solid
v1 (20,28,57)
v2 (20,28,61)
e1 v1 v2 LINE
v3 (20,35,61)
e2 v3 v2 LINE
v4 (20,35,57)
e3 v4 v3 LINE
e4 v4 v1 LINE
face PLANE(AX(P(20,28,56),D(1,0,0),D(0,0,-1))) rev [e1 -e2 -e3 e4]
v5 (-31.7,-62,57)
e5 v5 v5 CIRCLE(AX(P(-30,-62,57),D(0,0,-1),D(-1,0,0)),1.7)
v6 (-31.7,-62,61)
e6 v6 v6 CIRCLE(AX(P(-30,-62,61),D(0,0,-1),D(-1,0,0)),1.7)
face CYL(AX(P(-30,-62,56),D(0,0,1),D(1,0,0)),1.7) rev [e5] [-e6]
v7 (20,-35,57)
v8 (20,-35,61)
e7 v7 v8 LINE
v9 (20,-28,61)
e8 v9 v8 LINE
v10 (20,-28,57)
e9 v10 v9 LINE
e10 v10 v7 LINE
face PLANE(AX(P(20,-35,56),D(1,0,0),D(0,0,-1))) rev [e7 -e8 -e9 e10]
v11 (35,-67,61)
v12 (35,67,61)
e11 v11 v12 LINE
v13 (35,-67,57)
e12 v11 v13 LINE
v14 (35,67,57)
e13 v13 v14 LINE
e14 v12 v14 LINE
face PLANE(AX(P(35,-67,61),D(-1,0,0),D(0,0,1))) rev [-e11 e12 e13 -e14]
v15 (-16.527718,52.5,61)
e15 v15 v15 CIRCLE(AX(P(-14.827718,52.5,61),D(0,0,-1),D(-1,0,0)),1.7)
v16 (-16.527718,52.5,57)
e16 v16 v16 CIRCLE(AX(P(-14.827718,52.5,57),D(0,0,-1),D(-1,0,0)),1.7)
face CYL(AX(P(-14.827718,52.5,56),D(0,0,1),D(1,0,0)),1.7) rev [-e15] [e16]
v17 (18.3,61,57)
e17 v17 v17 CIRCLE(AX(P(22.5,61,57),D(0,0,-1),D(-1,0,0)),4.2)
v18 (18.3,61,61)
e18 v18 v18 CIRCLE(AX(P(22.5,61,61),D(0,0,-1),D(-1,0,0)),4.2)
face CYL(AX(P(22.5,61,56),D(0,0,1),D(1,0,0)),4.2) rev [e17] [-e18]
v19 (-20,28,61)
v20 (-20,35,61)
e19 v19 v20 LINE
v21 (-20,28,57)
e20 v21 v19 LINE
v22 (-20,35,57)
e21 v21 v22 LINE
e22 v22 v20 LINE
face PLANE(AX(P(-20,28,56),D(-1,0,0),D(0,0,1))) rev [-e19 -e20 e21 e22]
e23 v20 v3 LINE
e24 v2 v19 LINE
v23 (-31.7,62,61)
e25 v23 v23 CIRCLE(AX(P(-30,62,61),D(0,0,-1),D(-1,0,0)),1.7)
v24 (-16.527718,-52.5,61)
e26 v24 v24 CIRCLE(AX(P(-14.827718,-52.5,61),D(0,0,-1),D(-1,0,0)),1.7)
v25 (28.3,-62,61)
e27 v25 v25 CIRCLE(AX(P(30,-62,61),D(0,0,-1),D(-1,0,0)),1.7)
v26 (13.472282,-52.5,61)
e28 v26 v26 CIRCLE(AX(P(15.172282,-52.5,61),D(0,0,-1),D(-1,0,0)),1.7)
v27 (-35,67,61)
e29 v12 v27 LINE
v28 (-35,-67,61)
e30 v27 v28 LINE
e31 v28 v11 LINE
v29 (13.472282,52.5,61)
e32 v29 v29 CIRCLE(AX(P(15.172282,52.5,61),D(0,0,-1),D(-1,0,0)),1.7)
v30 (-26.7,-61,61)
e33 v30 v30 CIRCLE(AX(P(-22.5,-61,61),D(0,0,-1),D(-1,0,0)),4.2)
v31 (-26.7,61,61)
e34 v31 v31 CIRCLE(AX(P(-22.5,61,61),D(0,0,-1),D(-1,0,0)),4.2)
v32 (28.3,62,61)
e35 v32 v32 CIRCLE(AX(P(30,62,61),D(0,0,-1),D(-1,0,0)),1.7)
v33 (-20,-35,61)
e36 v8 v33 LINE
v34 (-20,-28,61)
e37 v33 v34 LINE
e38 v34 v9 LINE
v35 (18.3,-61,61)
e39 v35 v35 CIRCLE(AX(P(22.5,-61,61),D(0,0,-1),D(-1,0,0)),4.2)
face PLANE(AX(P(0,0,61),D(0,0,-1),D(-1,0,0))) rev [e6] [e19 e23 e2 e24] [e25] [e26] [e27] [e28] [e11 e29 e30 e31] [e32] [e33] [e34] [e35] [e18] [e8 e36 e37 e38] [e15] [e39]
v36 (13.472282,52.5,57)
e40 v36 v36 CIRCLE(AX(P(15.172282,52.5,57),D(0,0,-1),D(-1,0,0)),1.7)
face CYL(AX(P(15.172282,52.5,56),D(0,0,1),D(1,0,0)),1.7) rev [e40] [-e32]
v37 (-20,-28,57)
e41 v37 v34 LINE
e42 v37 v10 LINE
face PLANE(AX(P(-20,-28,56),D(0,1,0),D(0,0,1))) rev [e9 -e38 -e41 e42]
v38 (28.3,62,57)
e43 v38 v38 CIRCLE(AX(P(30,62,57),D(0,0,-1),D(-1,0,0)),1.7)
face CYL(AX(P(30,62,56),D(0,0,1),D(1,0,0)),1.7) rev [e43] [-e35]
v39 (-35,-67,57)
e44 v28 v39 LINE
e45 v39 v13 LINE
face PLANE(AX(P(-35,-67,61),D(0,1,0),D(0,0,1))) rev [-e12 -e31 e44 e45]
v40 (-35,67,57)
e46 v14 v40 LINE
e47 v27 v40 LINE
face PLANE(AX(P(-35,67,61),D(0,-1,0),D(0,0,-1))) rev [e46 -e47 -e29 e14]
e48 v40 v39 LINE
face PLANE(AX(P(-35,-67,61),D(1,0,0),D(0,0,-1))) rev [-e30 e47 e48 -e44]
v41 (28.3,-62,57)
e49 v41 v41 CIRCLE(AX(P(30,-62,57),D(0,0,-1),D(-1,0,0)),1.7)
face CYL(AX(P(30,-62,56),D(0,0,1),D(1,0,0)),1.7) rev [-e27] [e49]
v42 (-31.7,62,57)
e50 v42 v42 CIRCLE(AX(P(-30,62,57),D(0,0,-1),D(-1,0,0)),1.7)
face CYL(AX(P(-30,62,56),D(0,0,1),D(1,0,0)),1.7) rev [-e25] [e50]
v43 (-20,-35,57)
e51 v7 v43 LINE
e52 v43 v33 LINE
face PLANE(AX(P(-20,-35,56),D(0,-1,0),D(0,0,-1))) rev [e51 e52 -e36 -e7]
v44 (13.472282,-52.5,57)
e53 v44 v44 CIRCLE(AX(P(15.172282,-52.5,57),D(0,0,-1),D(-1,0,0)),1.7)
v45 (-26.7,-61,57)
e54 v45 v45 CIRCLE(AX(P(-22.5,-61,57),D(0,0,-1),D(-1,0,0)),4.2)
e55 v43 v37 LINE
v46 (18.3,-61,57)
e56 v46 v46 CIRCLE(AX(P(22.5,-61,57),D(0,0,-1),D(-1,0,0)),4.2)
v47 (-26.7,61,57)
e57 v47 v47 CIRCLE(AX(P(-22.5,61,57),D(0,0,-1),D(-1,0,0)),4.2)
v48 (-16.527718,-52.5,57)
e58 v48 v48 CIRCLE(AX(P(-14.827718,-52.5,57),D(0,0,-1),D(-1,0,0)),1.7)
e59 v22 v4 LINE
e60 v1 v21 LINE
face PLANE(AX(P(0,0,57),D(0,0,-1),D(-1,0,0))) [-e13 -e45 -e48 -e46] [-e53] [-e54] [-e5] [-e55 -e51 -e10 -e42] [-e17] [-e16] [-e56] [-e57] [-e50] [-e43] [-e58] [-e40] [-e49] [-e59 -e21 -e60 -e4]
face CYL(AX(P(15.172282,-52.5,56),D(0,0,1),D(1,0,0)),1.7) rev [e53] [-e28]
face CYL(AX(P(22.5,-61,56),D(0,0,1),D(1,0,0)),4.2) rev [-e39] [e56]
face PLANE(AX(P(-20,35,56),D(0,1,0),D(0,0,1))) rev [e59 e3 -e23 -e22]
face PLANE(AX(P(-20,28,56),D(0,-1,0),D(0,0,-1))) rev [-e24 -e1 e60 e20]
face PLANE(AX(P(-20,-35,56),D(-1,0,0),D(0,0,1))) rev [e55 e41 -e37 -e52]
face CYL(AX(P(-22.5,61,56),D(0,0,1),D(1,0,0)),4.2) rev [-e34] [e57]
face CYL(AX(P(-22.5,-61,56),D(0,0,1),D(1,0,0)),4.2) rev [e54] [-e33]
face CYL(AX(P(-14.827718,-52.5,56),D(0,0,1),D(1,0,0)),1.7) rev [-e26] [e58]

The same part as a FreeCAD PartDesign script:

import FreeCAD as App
import Part
import Sketcher
from FreeCAD import Vector

doc = App.newDocument("Part")
body = doc.addObject("PartDesign::Body", "Body")

# Sketch on XY plane
sketch1 = body.newObject("Sketcher::SketchObject", "Sketch")
sketch1.AttachmentSupport = (doc.getObject("XY_Plane"), [""])
sketch1.MapMode = "FlatFace"
sketch1.AttachmentOffset = App.Placement(Vector(0, 0, 57), App.Rotation())
sketch1.addGeometry([
    Part.LineSegment(Vector(-35, 67, 0), Vector(-35, -67, 0)),
    Part.LineSegment(Vector(-35, -67, 0), Vector(35, -67, 0)),
    Part.LineSegment(Vector(35, -67, 0), Vector(35, 67, 0)),
    Part.LineSegment(Vector(35, 67, 0), Vector(-35, 67, 0)),
], False)
sketch1.addConstraint([
    Sketcher.Constraint("Coincident", 0, 2, 1, 1),
    Sketcher.Constraint("Coincident", 1, 2, 2, 1),
    Sketcher.Constraint("Coincident", 2, 2, 3, 1),
    Sketcher.Constraint("Coincident", 3, 2, 0, 1),
    Sketcher.Constraint("Vertical", 0),
    Sketcher.Constraint("Horizontal", 1),
    Sketcher.Constraint("Vertical", 2),
    Sketcher.Constraint("Horizontal", 3),
    Sketcher.Constraint("Symmetric", 0, 2, 2, 2, -1, 1),
    Sketcher.Constraint("DistanceX", 1, 1, 1, 2, 70.0),
    Sketcher.Constraint("DistanceY", 0, 2, 0, 1, 134.0),
])
pad1 = body.newObject("PartDesign::Pad", "Pad")
pad1.Profile = sketch1
pad1.Length = 4

# Sketch on XY plane
sketch2 = body.newObject("Sketcher::SketchObject", "Sketch001")
sketch2.AttachmentSupport = (doc.getObject("XY_Plane"), [""])
sketch2.MapMode = "FlatFace"
sketch2.AttachmentOffset = App.Placement(Vector(0, 0, 62), App.Rotation())
sketch2.addGeometry([
    Part.Circle(Vector(-30, -62, 0), Vector(0, 0, 1), 1.7),  # 0
    Part.Circle(Vector(-30, 62, 0), Vector(0, 0, 1), 1.7),  # 1
    Part.Circle(Vector(30, -62, 0), Vector(0, 0, 1), 1.7),  # 2
    Part.Circle(Vector(30, 62, 0), Vector(0, 0, 1), 1.7),  # 3
    Part.Circle(Vector(15.2, -52.5, 0), Vector(0, 0, 1), 1.7),  # 4
    Part.Circle(Vector(15.2, 52.5, 0), Vector(0, 0, 1), 1.7),  # 5
    Part.Circle(Vector(-14.8, -52.5, 0), Vector(0, 0, 1), 1.7),  # 6
    Part.Circle(Vector(-14.8, 52.5, 0), Vector(0, 0, 1), 1.7),  # 7
    Part.LineSegment(Vector(-20, -28, 0), Vector(-20, -35, 0)),  # 8
    Part.LineSegment(Vector(-20, -35, 0), Vector(20, -35, 0)),  # 9
    Part.LineSegment(Vector(20, -35, 0), Vector(20, -28, 0)),  # 10
    Part.LineSegment(Vector(20, -28, 0), Vector(-20, -28, 0)),  # 11
    Part.LineSegment(Vector(-20, 35, 0), Vector(-20, 28, 0)),  # 12
    Part.LineSegment(Vector(-20, 28, 0), Vector(20, 28, 0)),  # 13
    Part.LineSegment(Vector(20, 28, 0), Vector(20, 35, 0)),  # 14
    Part.LineSegment(Vector(20, 35, 0), Vector(-20, 35, 0)),  # 15
], False)
sketch2.addConstraint([
    Sketcher.Constraint("Coincident", 8, 2, 9, 1),
    Sketcher.Constraint("Coincident", 9, 2, 10, 1),
    Sketcher.Constraint("Coincident", 10, 2, 11, 1),
    Sketcher.Constraint("Coincident", 11, 2, 8, 1),
    Sketcher.Constraint("Coincident", 12, 2, 13, 1),
    Sketcher.Constraint("Coincident", 13, 2, 14, 1),
    Sketcher.Constraint("Coincident", 14, 2, 15, 1),
    Sketcher.Constraint("Coincident", 15, 2, 12, 1),
    Sketcher.Constraint("Vertical", 8),
    Sketcher.Constraint("Horizontal", 9),
    Sketcher.Constraint("Vertical", 10),
    Sketcher.Constraint("Horizontal", 11),
    Sketcher.Constraint("Vertical", 12),
    Sketcher.Constraint("Horizontal", 13),
    Sketcher.Constraint("Vertical", 14),
    Sketcher.Constraint("Horizontal", 15),
    Sketcher.Constraint("Equal", 0, 1),
    Sketcher.Constraint("Equal", 1, 2),
    Sketcher.Constraint("Equal", 2, 3),
    Sketcher.Constraint("Equal", 3, 4),
    Sketcher.Constraint("Equal", 4, 5),
    Sketcher.Constraint("Equal", 5, 6),
    Sketcher.Constraint("Equal", 6, 7),
    Sketcher.Constraint("Symmetric", 1, 3, 2, 3, -1, 1),
    Sketcher.Constraint("Symmetric", 0, 3, 3, 3, -1, 1),
    Sketcher.Constraint("Symmetric", 10, 2, 12, 2, -1, 1),
    Sketcher.Constraint("Symmetric", 8, 2, 14, 2, -1, 1),
    Sketcher.Constraint("Symmetric", 0, 3, 2, 3, -2),
    Sketcher.Constraint("Symmetric", 4, 3, 5, 3, -1),
    Sketcher.Constraint("Symmetric", 6, 3, 7, 3, -1),
    Sketcher.Constraint("Horizontal", 4, 3, 6, 3),
    Sketcher.Constraint("Vertical", 11, 2, 12, 2),
    Sketcher.Constraint("Diameter", 0, 3.4),
    Sketcher.Constraint("DistanceX", 9, 1, 9, 2, 40.0),
    Sketcher.Constraint("DistanceY", 8, 2, 8, 1, 7.0),
    Sketcher.Constraint("DistanceX", 0, 3, -1, 1, 30.0),
    Sketcher.Constraint("DistanceY", 0, 3, -1, 1, 62.0),
    Sketcher.Constraint("DistanceY", 8, 2, -1, 1, 35.0),
    Sketcher.Constraint("DistanceY", 4, 3, 5, 3, 105.0),
    Sketcher.Constraint("DistanceX", 6, 3, 4, 3, 30.0),
    Sketcher.Constraint("DistanceX", -1, 1, 4, 3, 15.172282),
])
pocket1 = body.newObject("PartDesign::Pocket", "Pocket")
pocket1.Profile = sketch2
pocket1.Length = 6

# Sketch on XY plane
sketch3 = body.newObject("Sketcher::SketchObject", "Sketch002")
sketch3.AttachmentSupport = (doc.getObject("XY_Plane"), [""])
sketch3.MapMode = "FlatFace"
sketch3.AttachmentOffset = App.Placement(Vector(0, 0, 62), App.Rotation())
sketch3.addGeometry([
    Part.Circle(Vector(-22.5, -61, 0), Vector(0, 0, 1), 4.2),
    Part.Circle(Vector(-22.5, 61, 0), Vector(0, 0, 1), 4.2),
    Part.Circle(Vector(22.5, -61, 0), Vector(0, 0, 1), 4.2),
    Part.Circle(Vector(22.5, 61, 0), Vector(0, 0, 1), 4.2),
], False)
sketch3.addConstraint([
    Sketcher.Constraint("Equal", 0, 1),
    Sketcher.Constraint("Equal", 1, 2),
    Sketcher.Constraint("Equal", 2, 3),
    Sketcher.Constraint("Symmetric", 1, 3, 2, 3, -1, 1),
    Sketcher.Constraint("Symmetric", 0, 3, 3, 3, -1, 1),
    Sketcher.Constraint("Symmetric", 0, 3, 2, 3, -2),
    Sketcher.Constraint("Diameter", 0, 8.4),
    Sketcher.Constraint("DistanceY", 0, 3, -1, 1, 61.0),
    Sketcher.Constraint("DistanceX", 0, 3, 2, 3, 45.0),
])
pocket2 = body.newObject("PartDesign::Pocket", "Pocket001")
pocket2.Profile = sketch3
pocket2.Length = 6

doc.recompute()
